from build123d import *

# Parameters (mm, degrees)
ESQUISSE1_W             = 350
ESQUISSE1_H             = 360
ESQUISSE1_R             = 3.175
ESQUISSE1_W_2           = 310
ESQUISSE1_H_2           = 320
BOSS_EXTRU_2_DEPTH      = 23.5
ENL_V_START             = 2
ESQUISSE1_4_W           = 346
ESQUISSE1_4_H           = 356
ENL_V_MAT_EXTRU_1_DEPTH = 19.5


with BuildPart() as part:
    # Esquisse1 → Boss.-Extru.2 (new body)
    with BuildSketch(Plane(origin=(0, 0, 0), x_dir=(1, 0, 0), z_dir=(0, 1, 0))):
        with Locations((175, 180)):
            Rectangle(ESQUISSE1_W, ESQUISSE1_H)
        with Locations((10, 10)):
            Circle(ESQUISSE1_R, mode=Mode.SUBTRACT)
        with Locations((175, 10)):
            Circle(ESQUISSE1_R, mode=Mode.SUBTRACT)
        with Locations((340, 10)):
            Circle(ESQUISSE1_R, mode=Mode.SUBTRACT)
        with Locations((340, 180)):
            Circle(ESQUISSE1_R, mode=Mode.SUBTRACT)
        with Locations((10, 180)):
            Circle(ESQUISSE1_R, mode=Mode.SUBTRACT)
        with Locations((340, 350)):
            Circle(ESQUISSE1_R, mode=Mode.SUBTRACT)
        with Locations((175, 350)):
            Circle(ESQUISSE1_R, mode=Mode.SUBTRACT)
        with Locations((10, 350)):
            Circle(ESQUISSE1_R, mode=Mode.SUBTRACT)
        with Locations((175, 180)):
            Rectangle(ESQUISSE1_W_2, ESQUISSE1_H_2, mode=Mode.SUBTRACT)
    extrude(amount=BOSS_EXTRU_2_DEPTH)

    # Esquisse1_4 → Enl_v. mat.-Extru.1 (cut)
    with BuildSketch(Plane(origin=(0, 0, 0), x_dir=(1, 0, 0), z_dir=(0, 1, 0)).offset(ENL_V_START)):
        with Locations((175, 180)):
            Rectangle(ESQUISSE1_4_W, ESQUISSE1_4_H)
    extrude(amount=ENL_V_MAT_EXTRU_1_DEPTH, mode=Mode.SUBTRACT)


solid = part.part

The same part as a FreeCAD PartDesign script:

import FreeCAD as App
import Part
import Sketcher

V = App.Vector


def add_polygon(sketch, points):
    """Adds a closed chain of lines whose ends are joined by coincident constraints."""
    first, n = sketch.GeometryCount, len(points)
    for a, b in zip(points, points[1:] + points[:1]):
        sketch.addGeometry(Part.LineSegment(App.Vector(*a, 0), App.Vector(*b, 0)), False)
    for i in range(n):
        sketch.addConstraint(Sketcher.Constraint("Coincident", first + i, 2, first + (i + 1) % n, 1))

doc = App.newDocument("Part")
body = doc.addObject("PartDesign::Body", "Body")

sketch1 = doc.addObject("Sketcher::SketchObject", "Sketch")
body.addObject(sketch1)
sketch1.AttachmentSupport = (doc.XZ_Plane, [""])
sketch1.MapMode = "FlatFace"
add_polygon(sketch1, [(0, -360), (0, 0), (350, 0), (350, -360)])
sketch1.addGeometry(Part.Circle(V(10, -10, 0), V(0, 0, 1), 3.2), False)
sketch1.addGeometry(Part.Circle(V(175, -10, 0), V(0, 0, 1), 3.2), False)
sketch1.addGeometry(Part.Circle(V(340, -10, 0), V(0, 0, 1), 3.2), False)
sketch1.addGeometry(Part.Circle(V(10, -180, 0), V(0, 0, 1), 3.2), False)
sketch1.addGeometry(Part.Circle(V(10, -350, 0), V(0, 0, 1), 3.2), False)
add_polygon(sketch1, [(330, -20), (20, -20), (20, -340), (330, -340)])
sketch1.addGeometry(Part.Circle(V(340, -180, 0), V(0, 0, 1), 3.2), False)
sketch1.addGeometry(Part.Circle(V(175, -350, 0), V(0, 0, 1), 3.2), False)
sketch1.addGeometry(Part.Circle(V(340, -350, 0), V(0, 0, 1), 3.2), False)
sketch1.addConstraint(Sketcher.Constraint("Vertical", 0))
sketch1.addConstraint(Sketcher.Constraint("Horizontal", 1))
sketch1.addConstraint(Sketcher.Constraint("Vertical", 2))
sketch1.addConstraint(Sketcher.Constraint("Horizontal", 3))
sketch1.addConstraint(Sketcher.Constraint("Horizontal", 9))
sketch1.addConstraint(Sketcher.Constraint("Vertical", 10))
sketch1.addConstraint(Sketcher.Constraint("Horizontal", 11))
sketch1.addConstraint(Sketcher.Constraint("Vertical", 12))
sketch1.addConstraint(Sketcher.Constraint("Coincident", 0, 2, -1, 1))
sketch1.addConstraint(Sketcher.Constraint("Equal", 4, 5))
sketch1.addConstraint(Sketcher.Constraint("Equal", 5, 6))
sketch1.addConstraint(Sketcher.Constraint("Equal", 6, 7))
sketch1.addConstraint(Sketcher.Constraint("Equal", 7, 8))
sketch1.addConstraint(Sketcher.Constraint("Equal", 8, 13))
sketch1.addConstraint(Sketcher.Constraint("Equal", 13, 14))
sketch1.addConstraint(Sketcher.Constraint("Equal", 14, 15))
sketch1.addConstraint(Sketcher.Constraint("Horizontal", 4, 3, 5, 3))
sketch1.addConstraint(Sketcher.Constraint("Horizontal", 5, 3, 6, 3))
sketch1.addConstraint(Sketcher.Constraint("Horizontal", 7, 3, 13, 3))
sketch1.addConstraint(Sketcher.Constraint("Horizontal", 8, 3, 14, 3))
sketch1.addConstraint(Sketcher.Constraint("Horizontal", 14, 3, 15, 3))
sketch1.addConstraint(Sketcher.Constraint("Vertical", 4, 3, 7, 3))
sketch1.addConstraint(Sketcher.Constraint("Vertical", 7, 3, 8, 3))
sketch1.addConstraint(Sketcher.Constraint("Vertical", 6, 3, 13, 3))
sketch1.addConstraint(Sketcher.Constraint("Vertical", 5, 3, 14, 3))
sketch1.addConstraint(Sketcher.Constraint("Vertical", 13, 3, 15, 3))
sketch1.addConstraint(Sketcher.Constraint("Diameter", 4, 6.35))
sketch1.addConstraint(Sketcher.Constraint("DistanceX", 1, 1, 1, 2, 350.0))
sketch1.addConstraint(Sketcher.Constraint("DistanceX", 9, 2, 9, 1, 310.0))
sketch1.addConstraint(Sketcher.Constraint("DistanceY", 0, 1, 0, 2, 360.0))
sketch1.addConstraint(Sketcher.Constraint("DistanceY", 10, 2, 10, 1, 320.0))
sketch1.addConstraint(Sketcher.Constraint("DistanceX", -1, 1, 4, 3, 10.0))
sketch1.addConstraint(Sketcher.Constraint("DistanceY", 4, 3, -1, 1, 10.0))
sketch1.addConstraint(Sketcher.Constraint("DistanceX", -1, 1, 5, 3, 175.0))
sketch1.addConstraint(Sketcher.Constraint("DistanceX", -1, 1, 6, 3, 340.0))
sketch1.addConstraint(Sketcher.Constraint("DistanceY", 7, 3, -1, 1, 180.0))
sketch1.addConstraint(Sketcher.Constraint("DistanceY", 8, 3, -1, 1, 350.0))
sketch1.addConstraint(Sketcher.Constraint("DistanceX", -1, 1, 9, 2, 20.0))
sketch1.addConstraint(Sketcher.Constraint("DistanceY", 9, 2, -1, 1, 20.0))
pad1 = doc.addObject("PartDesign::Pad", "Pad")
body.addObject(pad1)
pad1.Profile = sketch1
pad1.Length = 23.5
pad1.Reversed = True

sketch2 = doc.addObject("Sketcher::SketchObject", "Sketch001")
body.addObject(sketch2)
sketch2.AttachmentSupport = (doc.XZ_Plane, [""])
sketch2.MapMode = "FlatFace"
sketch2.AttachmentOffset = App.Placement(V(0, 0, -2), App.Rotation())
add_polygon(sketch2, [(2, -358), (2, -2), (348, -2), (348, -358)])
sketch2.addConstraint(Sketcher.Constraint("Vertical", 0))
sketch2.addConstraint(Sketcher.Constraint("Horizontal", 1))
sketch2.addConstraint(Sketcher.Constraint("Vertical", 2))
sketch2.addConstraint(Sketcher.Constraint("Horizontal", 3))
sketch2.addConstraint(Sketcher.Constraint("DistanceX", 1, 1, 1, 2, 346.0))
sketch2.addConstraint(Sketcher.Constraint("DistanceY", 0, 1, 0, 2, 356.0))
sketch2.addConstraint(Sketcher.Constraint("DistanceX", -1, 1, 0, 2, 2.0))
sketch2.addConstraint(Sketcher.Constraint("DistanceY", 0, 2, -1, 1, 2.0))
pocket1 = doc.addObject("PartDesign::Pocket", "Pocket")
body.addObject(pocket1)
pocket1.Profile = sketch2
pocket1.Length = 19.5

doc.recompute()
